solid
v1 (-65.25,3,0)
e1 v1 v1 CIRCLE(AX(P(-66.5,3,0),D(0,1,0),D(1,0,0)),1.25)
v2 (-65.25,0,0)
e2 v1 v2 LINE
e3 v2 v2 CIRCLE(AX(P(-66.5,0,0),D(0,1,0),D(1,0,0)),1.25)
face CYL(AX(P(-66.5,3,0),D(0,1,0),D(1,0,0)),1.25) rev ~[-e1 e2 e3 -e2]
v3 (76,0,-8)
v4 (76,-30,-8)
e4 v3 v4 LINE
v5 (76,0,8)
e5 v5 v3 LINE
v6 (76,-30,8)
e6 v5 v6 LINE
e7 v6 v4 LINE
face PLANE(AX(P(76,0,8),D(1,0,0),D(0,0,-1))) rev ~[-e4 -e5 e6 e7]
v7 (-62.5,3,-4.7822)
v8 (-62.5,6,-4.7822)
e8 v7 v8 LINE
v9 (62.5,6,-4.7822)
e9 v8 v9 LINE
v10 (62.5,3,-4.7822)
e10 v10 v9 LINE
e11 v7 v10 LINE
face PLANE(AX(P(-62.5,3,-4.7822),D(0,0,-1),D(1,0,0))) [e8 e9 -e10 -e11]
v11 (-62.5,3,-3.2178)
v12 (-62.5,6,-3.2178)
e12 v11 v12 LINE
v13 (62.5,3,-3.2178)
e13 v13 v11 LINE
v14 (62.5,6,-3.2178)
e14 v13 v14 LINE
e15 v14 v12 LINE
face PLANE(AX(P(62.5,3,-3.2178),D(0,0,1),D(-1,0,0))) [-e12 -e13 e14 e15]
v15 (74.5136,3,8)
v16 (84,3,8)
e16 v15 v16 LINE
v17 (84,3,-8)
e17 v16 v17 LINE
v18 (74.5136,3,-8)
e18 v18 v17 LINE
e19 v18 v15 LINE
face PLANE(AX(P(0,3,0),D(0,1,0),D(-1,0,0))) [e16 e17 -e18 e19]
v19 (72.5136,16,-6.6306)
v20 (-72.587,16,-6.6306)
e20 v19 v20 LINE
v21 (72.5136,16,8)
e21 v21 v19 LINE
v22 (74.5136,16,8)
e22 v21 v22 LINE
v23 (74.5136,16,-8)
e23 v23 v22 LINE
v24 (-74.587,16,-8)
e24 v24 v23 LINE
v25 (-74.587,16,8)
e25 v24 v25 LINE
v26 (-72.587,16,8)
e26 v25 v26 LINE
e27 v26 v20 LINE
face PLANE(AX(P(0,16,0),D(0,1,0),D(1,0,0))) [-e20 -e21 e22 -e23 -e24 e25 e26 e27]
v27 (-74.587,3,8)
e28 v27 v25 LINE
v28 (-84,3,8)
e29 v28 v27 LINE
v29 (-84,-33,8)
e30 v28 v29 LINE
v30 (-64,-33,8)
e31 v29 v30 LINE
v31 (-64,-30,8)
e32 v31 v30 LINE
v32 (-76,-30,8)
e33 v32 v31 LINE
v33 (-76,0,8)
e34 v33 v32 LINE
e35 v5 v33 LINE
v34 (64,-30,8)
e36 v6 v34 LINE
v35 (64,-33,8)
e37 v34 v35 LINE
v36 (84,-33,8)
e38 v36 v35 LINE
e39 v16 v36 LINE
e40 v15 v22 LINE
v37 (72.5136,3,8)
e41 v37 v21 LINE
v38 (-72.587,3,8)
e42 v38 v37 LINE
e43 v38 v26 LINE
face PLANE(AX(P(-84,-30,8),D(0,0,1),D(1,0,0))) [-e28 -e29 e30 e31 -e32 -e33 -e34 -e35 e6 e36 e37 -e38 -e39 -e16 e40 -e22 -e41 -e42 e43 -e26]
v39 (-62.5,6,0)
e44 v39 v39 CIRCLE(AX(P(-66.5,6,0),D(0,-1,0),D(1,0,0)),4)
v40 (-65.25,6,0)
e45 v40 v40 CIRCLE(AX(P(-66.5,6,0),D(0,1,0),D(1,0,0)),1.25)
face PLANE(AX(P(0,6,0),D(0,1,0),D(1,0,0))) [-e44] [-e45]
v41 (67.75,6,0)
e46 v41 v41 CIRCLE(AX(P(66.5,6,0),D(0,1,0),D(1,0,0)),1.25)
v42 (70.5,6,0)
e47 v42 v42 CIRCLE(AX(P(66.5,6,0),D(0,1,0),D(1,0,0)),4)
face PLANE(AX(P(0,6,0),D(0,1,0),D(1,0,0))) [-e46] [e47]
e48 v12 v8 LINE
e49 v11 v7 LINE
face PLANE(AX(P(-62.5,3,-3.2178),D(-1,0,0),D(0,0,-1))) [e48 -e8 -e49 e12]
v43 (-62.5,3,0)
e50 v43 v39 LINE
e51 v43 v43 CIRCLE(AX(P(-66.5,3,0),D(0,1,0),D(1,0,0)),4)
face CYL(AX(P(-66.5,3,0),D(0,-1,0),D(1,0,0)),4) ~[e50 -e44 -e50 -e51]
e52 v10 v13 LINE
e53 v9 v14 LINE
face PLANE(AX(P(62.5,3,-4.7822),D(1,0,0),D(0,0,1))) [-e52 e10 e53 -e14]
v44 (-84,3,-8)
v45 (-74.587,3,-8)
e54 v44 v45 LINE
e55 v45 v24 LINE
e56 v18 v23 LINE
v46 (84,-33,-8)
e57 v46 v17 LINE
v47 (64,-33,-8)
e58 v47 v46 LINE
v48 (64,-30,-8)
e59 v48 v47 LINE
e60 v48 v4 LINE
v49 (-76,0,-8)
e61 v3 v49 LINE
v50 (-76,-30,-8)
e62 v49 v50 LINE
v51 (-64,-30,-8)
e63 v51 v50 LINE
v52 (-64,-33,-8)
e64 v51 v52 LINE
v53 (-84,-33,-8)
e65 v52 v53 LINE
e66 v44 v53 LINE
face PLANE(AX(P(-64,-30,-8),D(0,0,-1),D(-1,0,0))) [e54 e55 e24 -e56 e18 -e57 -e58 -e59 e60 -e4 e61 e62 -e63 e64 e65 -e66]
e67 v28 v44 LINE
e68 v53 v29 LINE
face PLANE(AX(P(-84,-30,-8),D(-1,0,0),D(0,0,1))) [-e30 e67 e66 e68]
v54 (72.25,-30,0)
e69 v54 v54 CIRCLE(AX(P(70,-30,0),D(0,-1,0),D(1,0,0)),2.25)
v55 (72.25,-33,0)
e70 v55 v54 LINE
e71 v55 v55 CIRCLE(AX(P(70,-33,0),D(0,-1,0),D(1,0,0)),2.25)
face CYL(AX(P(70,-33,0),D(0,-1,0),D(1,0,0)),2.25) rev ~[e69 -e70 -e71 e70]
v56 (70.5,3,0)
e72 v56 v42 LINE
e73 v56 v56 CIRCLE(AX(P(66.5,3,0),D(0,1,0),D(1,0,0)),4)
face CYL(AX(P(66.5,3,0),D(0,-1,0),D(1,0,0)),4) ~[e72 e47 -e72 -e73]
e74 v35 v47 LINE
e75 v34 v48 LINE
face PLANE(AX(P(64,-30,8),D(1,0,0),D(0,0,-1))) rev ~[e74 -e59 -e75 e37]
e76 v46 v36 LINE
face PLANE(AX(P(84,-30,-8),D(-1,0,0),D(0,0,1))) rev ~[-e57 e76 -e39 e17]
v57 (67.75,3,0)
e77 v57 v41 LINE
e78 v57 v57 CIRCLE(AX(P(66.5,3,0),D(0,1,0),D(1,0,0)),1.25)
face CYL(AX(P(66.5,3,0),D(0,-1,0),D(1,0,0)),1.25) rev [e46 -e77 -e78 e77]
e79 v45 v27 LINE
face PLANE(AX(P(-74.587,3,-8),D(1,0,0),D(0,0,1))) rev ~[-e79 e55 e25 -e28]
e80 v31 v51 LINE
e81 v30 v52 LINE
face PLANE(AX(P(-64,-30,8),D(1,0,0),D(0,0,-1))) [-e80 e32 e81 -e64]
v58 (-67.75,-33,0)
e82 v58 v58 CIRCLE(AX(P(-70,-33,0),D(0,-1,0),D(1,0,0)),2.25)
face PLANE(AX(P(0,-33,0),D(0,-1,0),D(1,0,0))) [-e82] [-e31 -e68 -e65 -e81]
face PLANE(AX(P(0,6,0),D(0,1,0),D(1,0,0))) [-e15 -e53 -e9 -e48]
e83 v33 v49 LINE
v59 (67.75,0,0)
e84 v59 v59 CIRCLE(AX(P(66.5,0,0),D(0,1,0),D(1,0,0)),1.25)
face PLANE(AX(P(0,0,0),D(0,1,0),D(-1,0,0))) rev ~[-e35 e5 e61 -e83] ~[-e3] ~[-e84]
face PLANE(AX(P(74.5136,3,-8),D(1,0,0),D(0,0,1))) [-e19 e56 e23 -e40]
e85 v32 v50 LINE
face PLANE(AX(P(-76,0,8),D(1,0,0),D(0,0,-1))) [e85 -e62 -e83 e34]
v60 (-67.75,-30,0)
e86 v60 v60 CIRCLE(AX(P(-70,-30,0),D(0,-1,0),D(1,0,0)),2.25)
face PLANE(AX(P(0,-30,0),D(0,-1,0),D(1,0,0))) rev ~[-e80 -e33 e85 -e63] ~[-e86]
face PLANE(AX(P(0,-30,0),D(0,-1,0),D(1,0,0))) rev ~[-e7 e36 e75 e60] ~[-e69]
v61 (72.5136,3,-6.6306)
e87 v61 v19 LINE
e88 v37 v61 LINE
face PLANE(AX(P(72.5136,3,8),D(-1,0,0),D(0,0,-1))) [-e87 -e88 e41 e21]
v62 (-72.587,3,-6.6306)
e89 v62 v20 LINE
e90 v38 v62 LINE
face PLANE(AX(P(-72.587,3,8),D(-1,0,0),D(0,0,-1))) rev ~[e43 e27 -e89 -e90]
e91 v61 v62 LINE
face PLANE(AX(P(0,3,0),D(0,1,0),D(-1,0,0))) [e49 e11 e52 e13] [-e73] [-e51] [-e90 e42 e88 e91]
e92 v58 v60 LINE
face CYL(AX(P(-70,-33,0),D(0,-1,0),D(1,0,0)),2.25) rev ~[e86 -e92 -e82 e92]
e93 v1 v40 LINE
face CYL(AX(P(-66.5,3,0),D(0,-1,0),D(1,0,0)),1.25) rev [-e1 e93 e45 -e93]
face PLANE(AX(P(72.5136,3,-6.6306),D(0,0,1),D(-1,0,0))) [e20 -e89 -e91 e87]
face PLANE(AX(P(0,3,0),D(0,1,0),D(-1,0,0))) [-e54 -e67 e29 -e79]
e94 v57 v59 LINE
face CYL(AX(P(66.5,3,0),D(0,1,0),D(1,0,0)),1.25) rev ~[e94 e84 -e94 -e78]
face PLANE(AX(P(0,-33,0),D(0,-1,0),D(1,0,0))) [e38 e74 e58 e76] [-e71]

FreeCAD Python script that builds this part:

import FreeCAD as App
import Part
import Sketcher

V = App.Vector
Q = App.Units.Quantity

doc = App.newDocument("Part")
body = doc.addObject("PartDesign::Body", "Body")

sketch1 = body.newObject("Sketcher::SketchObject", "Sketch")
sketch1.AttachmentSupport = (doc.getObject("XZ_Plane"), [""])
sketch1.MapMode = "FlatFace"
sketch1.addGeometry(Part.LineSegment(V(-84, -8, 0), V(-84, 8, 0)), False)
sketch1.addGeometry(Part.LineSegment(V(-84, 8, 0), V(84, 8, 0)), False)
sketch1.addGeometry(Part.LineSegment(V(84, 8, 0), V(84, -8, 0)), False)
sketch1.addGeometry(Part.LineSegment(V(84, -8, 0), V(-84, -8, 0)), False)
sketch1.addConstraint(Sketcher.Constraint("Coincident", 0, 2, 1, 1))
sketch1.addConstraint(Sketcher.Constraint("Coincident", 1, 2, 2, 1))
sketch1.addConstraint(Sketcher.Constraint("Coincident", 2, 2, 3, 1))
sketch1.addConstraint(Sketcher.Constraint("Coincident", 3, 2, 0, 1))
sketch1.addConstraint(Sketcher.Constraint("Vertical", 0))
sketch1.addConstraint(Sketcher.Constraint("Horizontal", 1))
sketch1.addConstraint(Sketcher.Constraint("Vertical", 2))
sketch1.addConstraint(Sketcher.Constraint("Horizontal", 3))
sketch1.addConstraint(Sketcher.Constraint("Symmetric", 0, 2, 2, 2, -1, 1))
sketch1.addConstraint(Sketcher.Constraint("DistanceY", 0, 1, 0, 2, Q("16 mm")))
sketch1.addConstraint(Sketcher.Constraint("DistanceX", 1, 1, 1, 2, Q("168 mm")))
pad1 = body.newObject("PartDesign::Pad", "Pad")
pad1.Profile = sketch1
pad1.Length = 3
pad1.Reversed = True

sketch2 = body.newObject("Sketcher::SketchObject", "Sketch001")
sketch2.AttachmentSupport = (doc.getObject("XZ_Plane"), [""])
sketch2.MapMode = "FlatFace"
sketch2.AttachmentOffset = App.Placement(V(0, 0, -3), App.Rotation())
sketch2.addGeometry(Part.Circle(V(-66.5, 0, 0), V(0, 0, 1), 4), False)
sketch2.addGeometry(Part.Circle(V(-66.5, 0, 0), V(0, 0, 1), 1.2), False)
sketch2.addGeometry(Part.Circle(V(66.5, 0, 0), V(0, 0, 1), 4), False)
sketch2.addGeometry(Part.Circle(V(66.5, 0, 0), V(0, 0, 1), 1.2), False)
sketch2.addConstraint(Sketcher.Constraint("Coincident", 1, 3, 0, 3))
sketch2.addConstraint(Sketcher.Constraint("Coincident", 3, 3, 2, 3))
sketch2.addConstraint(Sketcher.Constraint("Equal", 0, 2))
sketch2.addConstraint(Sketcher.Constraint("Equal", 1, 3))
sketch2.addConstraint(Sketcher.Constraint("Symmetric", 0, 3, 2, 3, -1, 1))
sketch2.addConstraint(Sketcher.Constraint("PointOnObject", 0, 3, -1))
sketch2.addConstraint(Sketcher.Constraint("Diameter", 0, Q("8 mm")))
sketch2.addConstraint(Sketcher.Constraint("Diameter", 1, Q("2.5 mm")))
sketch2.addConstraint(Sketcher.Constraint("DistanceX", 0, 3, 2, 3, Q("133 mm")))
pad2 = body.newObject("PartDesign::Pad", "Pad001")
pad2.Profile = sketch2
pad2.Length = 3
pad2.Reversed = True

sketch3 = body.newObject("Sketcher::SketchObject", "Sketch002")
sketch3.AttachmentSupport = (doc.getObject("XZ_Plane"), [""])
sketch3.MapMode = "FlatFace"
sketch3.AttachmentOffset = App.Placement(V(0, 0, -3), App.Rotation())
sketch3.addGeometry(Part.Circle(V(-66.5, 0, 0), V(0, 0, 1), 1.2), False)
sketch3.addGeometry(Part.Circle(V(66.5, 0, 0), V(0, 0, 1), 1.2), False)
sketch3.addConstraint(Sketcher.Constraint("Equal", 0, 1))
sketch3.addConstraint(Sketcher.Constraint("Symmetric", 0, 3, 1, 3, -1, 1))
sketch3.addConstraint(Sketcher.Constraint("PointOnObject", 0, 3, -1))
sketch3.addConstraint(Sketcher.Constraint("Diameter", 0, Q("2.5 mm")))
sketch3.addConstraint(Sketcher.Constraint("DistanceX", 0, 3, 1, 3, Q("133 mm")))
pocket1 = body.newObject("PartDesign::Pocket", "Pocket")
pocket1.Profile = sketch3
pocket1.Length = 3
pocket1.Reversed = True

sketch4 = body.newObject("Sketcher::SketchObject", "Sketch003")
sketch4.AttachmentSupport = (doc.getObject("XZ_Plane"), [""])
sketch4.MapMode = "FlatFace"
sketch4.AttachmentOffset = App.Placement(V(0, 0, -3), App.Rotation())
sketch4.addGeometry(Part.LineSegment(V(62.5, -4.8, 0), V(-62.5, -4.8, 0)), False)
sketch4.addGeometry(Part.LineSegment(V(-62.5, -4.8, 0), V(-62.5, -3.2, 0)), False)
sketch4.addGeometry(Part.LineSegment(V(-62.5, -3.2, 0), V(62.5, -3.2, 0)), False)
sketch4.addGeometry(Part.LineSegment(V(62.5, -3.2, 0), V(62.5, -4.8, 0)), False)
sketch4.addConstraint(Sketcher.Constraint("Coincident", 0, 2, 1, 1))
sketch4.addConstraint(Sketcher.Constraint("Coincident", 1, 2, 2, 1))
sketch4.addConstraint(Sketcher.Constraint("Coincident", 2, 2, 3, 1))
sketch4.addConstraint(Sketcher.Constraint("Coincident", 3, 2, 0, 1))
sketch4.addConstraint(Sketcher.Constraint("Horizontal", 0))
sketch4.addConstraint(Sketcher.Constraint("Vertical", 1))
sketch4.addConstraint(Sketcher.Constraint("Horizontal", 2))
sketch4.addConstraint(Sketcher.Constraint("Vertical", 3))
sketch4.addConstraint(Sketcher.Constraint("DistanceX", 0, 2, 0, 1, Q("125 mm")))
sketch4.addConstraint(Sketcher.Constraint("DistanceX", 0, 2, -1, 1, Q("62.5 mm")))
sketch4.addConstraint(Sketcher.Constraint("DistanceY", 1, 1, 1, 2, Q("1.5644 mm")))
sketch4.addConstraint(Sketcher.Constraint("DistanceY", 0, 2, -1, 1, Q("4.7822 mm")))
pad3 = body.newObject("PartDesign::Pad", "Pad002")
pad3.Profile = sketch4
pad3.Length = 3
pad3.Reversed = True

sketch5 = body.newObject("Sketcher::SketchObject", "Sketch004")
sketch5.AttachmentSupport = (doc.getObject("XZ_Plane"), [""])
sketch5.MapMode = "FlatFace"
sketch5.addGeometry(Part.LineSegment(V(-84, -8, 0), V(-76, -8, 0)), False)
sketch5.addGeometry(Part.LineSegment(V(-76, -8, 0), V(-76, 8, 0)), False)
sketch5.addGeometry(Part.LineSegment(V(-76, 8, 0), V(-84, 8, 0)), False)
sketch5.addGeometry(Part.LineSegment(V(-84, 8, 0), V(-84, -8, 0)), False)
sketch5.addGeometry(Part.LineSegment(V(76, -8, 0), V(84, -8, 0)), False)
sketch5.addGeometry(Part.LineSegment(V(84, -8, 0), V(84, 8, 0)), False)
sketch5.addGeometry(Part.LineSegment(V(84, 8, 0), V(76, 8, 0)), False)
sketch5.addGeometry(Part.LineSegment(V(76, 8, 0), V(76, -8, 0)), False)
sketch5.addConstraint(Sketcher.Constraint("Coincident", 0, 2, 1, 1))
sketch5.addConstraint(Sketcher.Constraint("Coincident", 1, 2, 2, 1))
sketch5.addConstraint(Sketcher.Constraint("Coincident", 2, 2, 3, 1))
sketch5.addConstraint(Sketcher.Constraint("Coincident", 3, 2, 0, 1))
sketch5.addConstraint(Sketcher.Constraint("Coincident", 4, 2, 5, 1))
sketch5.addConstraint(Sketcher.Constraint("Coincident", 5, 2, 6, 1))
sketch5.addConstraint(Sketcher.Constraint("Coincident", 6, 2, 7, 1))
sketch5.addConstraint(Sketcher.Constraint("Coincident", 7, 2, 4, 1))
sketch5.addConstraint(Sketcher.Constraint("Horizontal", 0))
sketch5.addConstraint(Sketcher.Constraint("Vertical", 1))
sketch5.addConstraint(Sketcher.Constraint("Horizontal", 2))
sketch5.addConstraint(Sketcher.Constraint("Vertical", 3))
sketch5.addConstraint(Sketcher.Constraint("Horizontal", 4))
sketch5.addConstraint(Sketcher.Constraint("Vertical", 5))
sketch5.addConstraint(Sketcher.Constraint("Horizontal", 6))
sketch5.addConstraint(Sketcher.Constraint("Vertical", 7))
sketch5.addConstraint(Sketcher.Constraint("Symmetric", 2, 2, 4, 2, -1, 1))
sketch5.addConstraint(Sketcher.Constraint("Symmetric", 0, 2, 6, 2, -1, 1))
sketch5.addConstraint(Sketcher.Constraint("Horizontal", 3, 2, 4, 2))
sketch5.addConstraint(Sketcher.Constraint("DistanceX", 0, 1, 0, 2, Q("8 mm")))
sketch5.addConstraint(Sketcher.Constraint("DistanceY", 0, 2, -1, 1, Q("8 mm")))
sketch5.addConstraint(Sketcher.Constraint("DistanceX", 0, 2, -1, 1, Q("76 mm")))
pad4 = body.newObject("PartDesign::Pad", "Pad003")
pad4.Profile = sketch5
pad4.Length = 30

sketch6 = body.newObject("Sketcher::SketchObject", "Sketch005")
sketch6.AttachmentSupport = (doc.getObject("XZ_Plane"), [""])
sketch6.MapMode = "FlatFace"
sketch6.AttachmentOffset = App.Placement(V(0, 0, 30), App.Rotation())
sketch6.addGeometry(Part.LineSegment(V(84, -8, 0), V(84, 8, 0)), False)
sketch6.addGeometry(Part.LineSegment(V(84, 8, 0), V(64, 8, 0)), False)
sketch6.addGeometry(Part.LineSegment(V(64, 8, 0), V(64, -8, 0)), False)
sketch6.addGeometry(Part.LineSegment(V(64, -8, 0), V(84, -8, 0)), False)
sketch6.addConstraint(Sketcher.Constraint("Coincident", 0, 2, 1, 1))
sketch6.addConstraint(Sketcher.Constraint("Coincident", 1, 2, 2, 1))
sketch6.addConstraint(Sketcher.Constraint("Coincident", 2, 2, 3, 1))
sketch6.addConstraint(Sketcher.Constraint("Coincident", 3, 2, 0, 1))
sketch6.addConstraint(Sketcher.Constraint("Vertical", 0))
sketch6.addConstraint(Sketcher.Constraint("Horizontal", 1))
sketch6.addConstraint(Sketcher.Constraint("Vertical", 2))
sketch6.addConstraint(Sketcher.Constraint("Horizontal", 3))
sketch6.addConstraint(Sketcher.Constraint("DistanceX", 1, 2, 1, 1, Q("20 mm")))
sketch6.addConstraint(Sketcher.Constraint("DistanceY", 0, 1, 0, 2, Q("16 mm")))
sketch6.addConstraint(Sketcher.Constraint("DistanceX", -1, 1, 0, 2, Q("84 mm")))
sketch6.addConstraint(Sketcher.Constraint("DistanceY", -1, 1, 0, 2, Q("8 mm")))
pad5 = body.newObject("PartDesign::Pad", "Pad004")
pad5.Profile = sketch6
pad5.Length = 3

sketch7 = body.newObject("Sketcher::SketchObject", "Sketch006")
sketch7.AttachmentSupport = (doc.getObject("XZ_Plane"), [""])
sketch7.MapMode = "FlatFace"
sketch7.AttachmentOffset = App.Placement(V(0, 0, 30), App.Rotation())
sketch7.addGeometry(Part.LineSegment(V(-64, 8, 0), V(-84, 8, 0)), False)
sketch7.addGeometry(Part.LineSegment(V(-84, 8, 0), V(-84, -8, 0)), False)
sketch7.addGeometry(Part.LineSegment(V(-84, -8, 0), V(-64, -8, 0)), False)
sketch7.addGeometry(Part.LineSegment(V(-64, -8, 0), V(-64, 8, 0)), False)
sketch7.addConstraint(Sketcher.Constraint("Coincident", 0, 2, 1, 1))
sketch7.addConstraint(Sketcher.Constraint("Coincident", 1, 2, 2, 1))
sketch7.addConstraint(Sketcher.Constraint("Coincident", 2, 2, 3, 1))
sketch7.addConstraint(Sketcher.Constraint("Coincident", 3, 2, 0, 1))
sketch7.addConstraint(Sketcher.Constraint("Horizontal", 0))
sketch7.addConstraint(Sketcher.Constraint("Vertical", 1))
sketch7.addConstraint(Sketcher.Constraint("Horizontal", 2))
sketch7.addConstraint(Sketcher.Constraint("Vertical", 3))
sketch7.addConstraint(Sketcher.Constraint("DistanceX", 0, 2, 0, 1, Q("20 mm")))
sketch7.addConstraint(Sketcher.Constraint("DistanceY", 1, 2, 1, 1, Q("16 mm")))
sketch7.addConstraint(Sketcher.Constraint("DistanceX", 0, 2, -1, 1, Q("84 mm")))
sketch7.addConstraint(Sketcher.Constraint("DistanceY", -1, 1, 0, 2, Q("8 mm")))
pad6 = body.newObject("PartDesign::Pad", "Pad005")
pad6.Profile = sketch7
pad6.Length = 3

sketch8 = body.newObject("Sketcher::SketchObject", "Sketch007")
sketch8.AttachmentSupport = (doc.getObject("XZ_Plane"), [""])
sketch8.MapMode = "FlatFace"
sketch8.AttachmentOffset = App.Placement(V(0, 0, 33), App.Rotation())
sketch8.addGeometry(Part.Circle(V(-70, 0, 0), V(0, 0, 1), 2.2), False)
sketch8.addConstraint(Sketcher.Constraint("PointOnObject", 0, 3, -1))
sketch8.addConstraint(Sketcher.Constraint("Diameter", 0, Q("4.5 mm")))
sketch8.addConstraint(Sketcher.Constraint("DistanceX", 0, 3, -1, 1, Q("70 mm")))
pocket2 = body.newObject("PartDesign::Pocket", "Pocket001")
pocket2.Profile = sketch8
pocket2.Length = 3

sketch9 = body.newObject("Sketcher::SketchObject", "Sketch008")
sketch9.AttachmentSupport = (doc.getObject("XZ_Plane"), [""])
sketch9.MapMode = "FlatFace"
sketch9.AttachmentOffset = App.Placement(V(0, 0, 33), App.Rotation())
sketch9.addGeometry(Part.Circle(V(70, 0, 0), V(0, 0, 1), 2.2), False)
sketch9.addConstraint(Sketcher.Constraint("PointOnObject", 0, 3, -1))
sketch9.addConstraint(Sketcher.Constraint("Diameter", 0, Q("4.5 mm")))
sketch9.addConstraint(Sketcher.Constraint("DistanceX", -1, 1, 0, 3, Q("70 mm")))
pocket3 = body.newObject("PartDesign::Pocket", "Pocket002")
pocket3.Profile = sketch9
pocket3.Length = 3

sketch10 = body.newObject("Sketcher::SketchObject", "Sketch009")
sketch10.AttachmentSupport = (doc.getObject("XZ_Plane"), [""])
sketch10.MapMode = "FlatFace"
sketch10.AttachmentOffset = App.Placement(V(0, 0, -3), App.Rotation())
sketch10.addGeometry(Part.LineSegment(V(-74.6, -8, 0), V(-74.6, 8, 0)), False)
sketch10.addGeometry(Part.LineSegment(V(-74.6, 8, 0), V(-72.6, 8, 0)), False)
sketch10.addGeometry(Part.LineSegment(V(-72.6, 8, 0), V(-72.6, -6.6, 0)), False)
sketch10.addGeometry(Part.LineSegment(V(-72.6, -6.6, 0), V(72.5, -6.6, 0)), False)
sketch10.addGeometry(Part.LineSegment(V(72.5, -6.6, 0), V(72.5, 8, 0)), False)
sketch10.addGeometry(Part.LineSegment(V(72.5, 8, 0), V(74.5, 8, 0)), False)
sketch10.addGeometry(Part.LineSegment(V(74.5, 8, 0), V(74.5, -8, 0)), False)
sketch10.addGeometry(Part.LineSegment(V(74.5, -8, 0), V(-74.6, -8, 0)), False)
sketch10.addConstraint(Sketcher.Constraint("Coincident", 0, 2, 1, 1))
sketch10.addConstraint(Sketcher.Constraint("Coincident", 1, 2, 2, 1))
sketch10.addConstraint(Sketcher.Constraint("Coincident", 2, 2, 3, 1))
sketch10.addConstraint(Sketcher.Constraint("Coincident", 3, 2, 4, 1))
sketch10.addConstraint(Sketcher.Constraint("Coincident", 4, 2, 5, 1))
sketch10.addConstraint(Sketcher.Constraint("Coincident", 5, 2, 6, 1))
sketch10.addConstraint(Sketcher.Constraint("Coincident", 6, 2, 7, 1))
sketch10.addConstraint(Sketcher.Constraint("Coincident", 7, 2, 0, 1))
sketch10.addConstraint(Sketcher.Constraint("Vertical", 0))
sketch10.addConstraint(Sketcher.Constraint("Horizontal", 1))
sketch10.addConstraint(Sketcher.Constraint("Vertical", 2))
sketch10.addConstraint(Sketcher.Constraint("Horizontal", 3))
sketch10.addConstraint(Sketcher.Constraint("Vertical", 4))
sketch10.addConstraint(Sketcher.Constraint("Horizontal", 5))
sketch10.addConstraint(Sketcher.Constraint("Vertical", 6))
sketch10.addConstraint(Sketcher.Constraint("Horizontal", 7))
sketch10.addConstraint(Sketcher.Constraint("Horizontal", 1, 2, 4, 2))
sketch10.addConstraint(Sketcher.Constraint("Equal", 1, 5))
sketch10.addConstraint(Sketcher.Constraint("DistanceX", 1, 1, 1, 2, Q("2 mm")))
sketch10.addConstraint(Sketcher.Constraint("DistanceY", 0, 1, 0, 2, Q("16 mm")))
sketch10.addConstraint(Sketcher.Constraint("DistanceY", -1, 1, 0, 2, Q("8 mm")))
sketch10.addConstraint(Sketcher.Constraint("DistanceX", 3, 1, 3, 2, Q("145.1006 mm")))
sketch10.addConstraint(Sketcher.Constraint("DistanceY", 2, 2, 2, 1, Q("14.6306 mm")))
sketch10.addConstraint(Sketcher.Constraint("DistanceX", 0, 2, -1, 1, Q("74.587 mm")))
pad7 = body.newObject("PartDesign::Pad", "Pad006")
pad7.Profile = sketch10
pad7.Length = 13
pad7.Reversed = True

doc.recompute()
